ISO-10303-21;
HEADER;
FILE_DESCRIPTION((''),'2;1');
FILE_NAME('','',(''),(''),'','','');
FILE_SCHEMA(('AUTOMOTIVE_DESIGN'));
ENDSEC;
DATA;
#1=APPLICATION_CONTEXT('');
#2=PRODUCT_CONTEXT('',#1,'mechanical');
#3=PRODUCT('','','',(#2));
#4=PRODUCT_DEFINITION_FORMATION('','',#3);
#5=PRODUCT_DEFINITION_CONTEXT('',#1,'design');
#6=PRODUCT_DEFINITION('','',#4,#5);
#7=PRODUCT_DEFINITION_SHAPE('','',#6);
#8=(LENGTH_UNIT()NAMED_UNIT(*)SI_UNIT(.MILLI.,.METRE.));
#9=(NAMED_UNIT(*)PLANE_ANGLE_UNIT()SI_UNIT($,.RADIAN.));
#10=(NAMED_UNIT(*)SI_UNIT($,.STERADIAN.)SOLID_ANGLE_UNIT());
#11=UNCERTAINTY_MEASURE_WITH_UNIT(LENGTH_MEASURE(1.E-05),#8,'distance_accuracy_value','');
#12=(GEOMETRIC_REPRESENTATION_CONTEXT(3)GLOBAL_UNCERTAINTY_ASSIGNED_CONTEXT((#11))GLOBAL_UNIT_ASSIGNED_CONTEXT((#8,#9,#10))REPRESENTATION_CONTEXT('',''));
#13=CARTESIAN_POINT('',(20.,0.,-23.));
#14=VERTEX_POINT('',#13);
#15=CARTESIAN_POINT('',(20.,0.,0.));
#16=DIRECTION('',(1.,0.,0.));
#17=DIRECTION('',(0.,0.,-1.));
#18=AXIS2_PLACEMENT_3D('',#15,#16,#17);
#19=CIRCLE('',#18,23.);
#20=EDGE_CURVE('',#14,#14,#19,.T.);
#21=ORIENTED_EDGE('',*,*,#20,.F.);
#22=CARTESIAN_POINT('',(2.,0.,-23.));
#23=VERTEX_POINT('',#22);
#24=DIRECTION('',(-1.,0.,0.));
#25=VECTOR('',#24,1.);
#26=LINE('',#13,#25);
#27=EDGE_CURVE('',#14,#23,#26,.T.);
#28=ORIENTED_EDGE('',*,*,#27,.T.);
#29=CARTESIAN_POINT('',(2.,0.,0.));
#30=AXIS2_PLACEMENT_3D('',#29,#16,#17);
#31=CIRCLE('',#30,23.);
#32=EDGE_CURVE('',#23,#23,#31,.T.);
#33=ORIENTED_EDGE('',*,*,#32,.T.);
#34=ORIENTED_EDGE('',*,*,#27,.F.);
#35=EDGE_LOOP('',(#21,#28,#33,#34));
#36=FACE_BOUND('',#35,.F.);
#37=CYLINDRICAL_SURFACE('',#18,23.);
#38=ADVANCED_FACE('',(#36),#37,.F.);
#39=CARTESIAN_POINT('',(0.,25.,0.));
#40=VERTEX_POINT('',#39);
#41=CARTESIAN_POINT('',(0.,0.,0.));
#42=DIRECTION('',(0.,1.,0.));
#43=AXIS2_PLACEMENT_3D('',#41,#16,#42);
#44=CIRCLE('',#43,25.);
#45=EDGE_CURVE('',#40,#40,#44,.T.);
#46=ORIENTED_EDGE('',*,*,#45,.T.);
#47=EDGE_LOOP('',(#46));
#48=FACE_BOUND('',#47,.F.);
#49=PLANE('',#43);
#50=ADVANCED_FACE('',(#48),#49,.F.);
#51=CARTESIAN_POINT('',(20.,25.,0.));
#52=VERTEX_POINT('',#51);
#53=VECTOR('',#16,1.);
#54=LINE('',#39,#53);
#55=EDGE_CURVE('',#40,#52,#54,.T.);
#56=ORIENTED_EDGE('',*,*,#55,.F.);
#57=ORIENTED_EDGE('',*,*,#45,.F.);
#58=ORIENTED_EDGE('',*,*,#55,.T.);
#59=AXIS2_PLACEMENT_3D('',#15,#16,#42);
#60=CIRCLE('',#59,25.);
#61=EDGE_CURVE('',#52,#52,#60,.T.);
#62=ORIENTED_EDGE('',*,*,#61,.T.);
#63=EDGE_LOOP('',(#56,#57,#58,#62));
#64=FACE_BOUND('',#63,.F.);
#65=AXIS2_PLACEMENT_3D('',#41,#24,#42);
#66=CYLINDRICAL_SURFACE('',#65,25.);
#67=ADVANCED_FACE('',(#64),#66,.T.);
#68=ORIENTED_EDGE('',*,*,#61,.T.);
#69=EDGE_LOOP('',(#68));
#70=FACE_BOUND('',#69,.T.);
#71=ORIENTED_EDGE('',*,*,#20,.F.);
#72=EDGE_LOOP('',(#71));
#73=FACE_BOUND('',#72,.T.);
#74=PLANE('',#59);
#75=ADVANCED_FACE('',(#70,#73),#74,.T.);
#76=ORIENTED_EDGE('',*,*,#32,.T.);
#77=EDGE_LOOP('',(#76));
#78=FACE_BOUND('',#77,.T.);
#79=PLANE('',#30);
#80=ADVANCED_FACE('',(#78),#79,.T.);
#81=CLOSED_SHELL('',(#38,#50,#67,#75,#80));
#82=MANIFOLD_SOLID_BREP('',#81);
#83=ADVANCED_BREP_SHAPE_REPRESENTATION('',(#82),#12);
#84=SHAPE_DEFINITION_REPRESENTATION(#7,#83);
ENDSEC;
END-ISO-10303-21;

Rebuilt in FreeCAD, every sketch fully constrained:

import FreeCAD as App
import Part
import Sketcher
from FreeCAD import Vector
Q = App.Units.Quantity

doc = App.newDocument("Part")
body = doc.addObject("PartDesign::Body", "Body")

# Sketch on YZ plane
sketch1 = doc.addObject("Sketcher::SketchObject", "Sketch")
body.addObject(sketch1)
sketch1.AttachmentSupport = (doc.YZ_Plane, [""])
sketch1.MapMode = "FlatFace"
sketch1.addGeometry(Part.Circle(Vector(0, 0, 0), Vector(0, 0, 1), 25), False)
sketch1.addConstraint(Sketcher.Constraint("Coincident", 0, 3, -1, 1))
sketch1.addConstraint(Sketcher.Constraint("Diameter", 0, Q("50 mm")))
pad1 = doc.addObject("PartDesign::Pad", "Pad")
body.addObject(pad1)
pad1.Profile = sketch1
pad1.Length = 20

# Sketch on YZ plane
sketch2 = doc.addObject("Sketcher::SketchObject", "Sketch001")
body.addObject(sketch2)
sketch2.AttachmentSupport = (doc.YZ_Plane, [""])
sketch2.MapMode = "FlatFace"
sketch2.AttachmentOffset = App.Placement(Vector(0, 0, 20), App.Rotation())
sketch2.addGeometry(Part.Circle(Vector(0, 0, 0), Vector(0, 0, 1), 23), False)
sketch2.addConstraint(Sketcher.Constraint("Coincident", 0, 3, -1, 1))
sketch2.addConstraint(Sketcher.Constraint("Diameter", 0, Q("46 mm")))
pocket1 = doc.addObject("PartDesign::Pocket", "Pocket")
body.addObject(pocket1)
pocket1.Profile = sketch2
pocket1.Length = 18

doc.recompute()
